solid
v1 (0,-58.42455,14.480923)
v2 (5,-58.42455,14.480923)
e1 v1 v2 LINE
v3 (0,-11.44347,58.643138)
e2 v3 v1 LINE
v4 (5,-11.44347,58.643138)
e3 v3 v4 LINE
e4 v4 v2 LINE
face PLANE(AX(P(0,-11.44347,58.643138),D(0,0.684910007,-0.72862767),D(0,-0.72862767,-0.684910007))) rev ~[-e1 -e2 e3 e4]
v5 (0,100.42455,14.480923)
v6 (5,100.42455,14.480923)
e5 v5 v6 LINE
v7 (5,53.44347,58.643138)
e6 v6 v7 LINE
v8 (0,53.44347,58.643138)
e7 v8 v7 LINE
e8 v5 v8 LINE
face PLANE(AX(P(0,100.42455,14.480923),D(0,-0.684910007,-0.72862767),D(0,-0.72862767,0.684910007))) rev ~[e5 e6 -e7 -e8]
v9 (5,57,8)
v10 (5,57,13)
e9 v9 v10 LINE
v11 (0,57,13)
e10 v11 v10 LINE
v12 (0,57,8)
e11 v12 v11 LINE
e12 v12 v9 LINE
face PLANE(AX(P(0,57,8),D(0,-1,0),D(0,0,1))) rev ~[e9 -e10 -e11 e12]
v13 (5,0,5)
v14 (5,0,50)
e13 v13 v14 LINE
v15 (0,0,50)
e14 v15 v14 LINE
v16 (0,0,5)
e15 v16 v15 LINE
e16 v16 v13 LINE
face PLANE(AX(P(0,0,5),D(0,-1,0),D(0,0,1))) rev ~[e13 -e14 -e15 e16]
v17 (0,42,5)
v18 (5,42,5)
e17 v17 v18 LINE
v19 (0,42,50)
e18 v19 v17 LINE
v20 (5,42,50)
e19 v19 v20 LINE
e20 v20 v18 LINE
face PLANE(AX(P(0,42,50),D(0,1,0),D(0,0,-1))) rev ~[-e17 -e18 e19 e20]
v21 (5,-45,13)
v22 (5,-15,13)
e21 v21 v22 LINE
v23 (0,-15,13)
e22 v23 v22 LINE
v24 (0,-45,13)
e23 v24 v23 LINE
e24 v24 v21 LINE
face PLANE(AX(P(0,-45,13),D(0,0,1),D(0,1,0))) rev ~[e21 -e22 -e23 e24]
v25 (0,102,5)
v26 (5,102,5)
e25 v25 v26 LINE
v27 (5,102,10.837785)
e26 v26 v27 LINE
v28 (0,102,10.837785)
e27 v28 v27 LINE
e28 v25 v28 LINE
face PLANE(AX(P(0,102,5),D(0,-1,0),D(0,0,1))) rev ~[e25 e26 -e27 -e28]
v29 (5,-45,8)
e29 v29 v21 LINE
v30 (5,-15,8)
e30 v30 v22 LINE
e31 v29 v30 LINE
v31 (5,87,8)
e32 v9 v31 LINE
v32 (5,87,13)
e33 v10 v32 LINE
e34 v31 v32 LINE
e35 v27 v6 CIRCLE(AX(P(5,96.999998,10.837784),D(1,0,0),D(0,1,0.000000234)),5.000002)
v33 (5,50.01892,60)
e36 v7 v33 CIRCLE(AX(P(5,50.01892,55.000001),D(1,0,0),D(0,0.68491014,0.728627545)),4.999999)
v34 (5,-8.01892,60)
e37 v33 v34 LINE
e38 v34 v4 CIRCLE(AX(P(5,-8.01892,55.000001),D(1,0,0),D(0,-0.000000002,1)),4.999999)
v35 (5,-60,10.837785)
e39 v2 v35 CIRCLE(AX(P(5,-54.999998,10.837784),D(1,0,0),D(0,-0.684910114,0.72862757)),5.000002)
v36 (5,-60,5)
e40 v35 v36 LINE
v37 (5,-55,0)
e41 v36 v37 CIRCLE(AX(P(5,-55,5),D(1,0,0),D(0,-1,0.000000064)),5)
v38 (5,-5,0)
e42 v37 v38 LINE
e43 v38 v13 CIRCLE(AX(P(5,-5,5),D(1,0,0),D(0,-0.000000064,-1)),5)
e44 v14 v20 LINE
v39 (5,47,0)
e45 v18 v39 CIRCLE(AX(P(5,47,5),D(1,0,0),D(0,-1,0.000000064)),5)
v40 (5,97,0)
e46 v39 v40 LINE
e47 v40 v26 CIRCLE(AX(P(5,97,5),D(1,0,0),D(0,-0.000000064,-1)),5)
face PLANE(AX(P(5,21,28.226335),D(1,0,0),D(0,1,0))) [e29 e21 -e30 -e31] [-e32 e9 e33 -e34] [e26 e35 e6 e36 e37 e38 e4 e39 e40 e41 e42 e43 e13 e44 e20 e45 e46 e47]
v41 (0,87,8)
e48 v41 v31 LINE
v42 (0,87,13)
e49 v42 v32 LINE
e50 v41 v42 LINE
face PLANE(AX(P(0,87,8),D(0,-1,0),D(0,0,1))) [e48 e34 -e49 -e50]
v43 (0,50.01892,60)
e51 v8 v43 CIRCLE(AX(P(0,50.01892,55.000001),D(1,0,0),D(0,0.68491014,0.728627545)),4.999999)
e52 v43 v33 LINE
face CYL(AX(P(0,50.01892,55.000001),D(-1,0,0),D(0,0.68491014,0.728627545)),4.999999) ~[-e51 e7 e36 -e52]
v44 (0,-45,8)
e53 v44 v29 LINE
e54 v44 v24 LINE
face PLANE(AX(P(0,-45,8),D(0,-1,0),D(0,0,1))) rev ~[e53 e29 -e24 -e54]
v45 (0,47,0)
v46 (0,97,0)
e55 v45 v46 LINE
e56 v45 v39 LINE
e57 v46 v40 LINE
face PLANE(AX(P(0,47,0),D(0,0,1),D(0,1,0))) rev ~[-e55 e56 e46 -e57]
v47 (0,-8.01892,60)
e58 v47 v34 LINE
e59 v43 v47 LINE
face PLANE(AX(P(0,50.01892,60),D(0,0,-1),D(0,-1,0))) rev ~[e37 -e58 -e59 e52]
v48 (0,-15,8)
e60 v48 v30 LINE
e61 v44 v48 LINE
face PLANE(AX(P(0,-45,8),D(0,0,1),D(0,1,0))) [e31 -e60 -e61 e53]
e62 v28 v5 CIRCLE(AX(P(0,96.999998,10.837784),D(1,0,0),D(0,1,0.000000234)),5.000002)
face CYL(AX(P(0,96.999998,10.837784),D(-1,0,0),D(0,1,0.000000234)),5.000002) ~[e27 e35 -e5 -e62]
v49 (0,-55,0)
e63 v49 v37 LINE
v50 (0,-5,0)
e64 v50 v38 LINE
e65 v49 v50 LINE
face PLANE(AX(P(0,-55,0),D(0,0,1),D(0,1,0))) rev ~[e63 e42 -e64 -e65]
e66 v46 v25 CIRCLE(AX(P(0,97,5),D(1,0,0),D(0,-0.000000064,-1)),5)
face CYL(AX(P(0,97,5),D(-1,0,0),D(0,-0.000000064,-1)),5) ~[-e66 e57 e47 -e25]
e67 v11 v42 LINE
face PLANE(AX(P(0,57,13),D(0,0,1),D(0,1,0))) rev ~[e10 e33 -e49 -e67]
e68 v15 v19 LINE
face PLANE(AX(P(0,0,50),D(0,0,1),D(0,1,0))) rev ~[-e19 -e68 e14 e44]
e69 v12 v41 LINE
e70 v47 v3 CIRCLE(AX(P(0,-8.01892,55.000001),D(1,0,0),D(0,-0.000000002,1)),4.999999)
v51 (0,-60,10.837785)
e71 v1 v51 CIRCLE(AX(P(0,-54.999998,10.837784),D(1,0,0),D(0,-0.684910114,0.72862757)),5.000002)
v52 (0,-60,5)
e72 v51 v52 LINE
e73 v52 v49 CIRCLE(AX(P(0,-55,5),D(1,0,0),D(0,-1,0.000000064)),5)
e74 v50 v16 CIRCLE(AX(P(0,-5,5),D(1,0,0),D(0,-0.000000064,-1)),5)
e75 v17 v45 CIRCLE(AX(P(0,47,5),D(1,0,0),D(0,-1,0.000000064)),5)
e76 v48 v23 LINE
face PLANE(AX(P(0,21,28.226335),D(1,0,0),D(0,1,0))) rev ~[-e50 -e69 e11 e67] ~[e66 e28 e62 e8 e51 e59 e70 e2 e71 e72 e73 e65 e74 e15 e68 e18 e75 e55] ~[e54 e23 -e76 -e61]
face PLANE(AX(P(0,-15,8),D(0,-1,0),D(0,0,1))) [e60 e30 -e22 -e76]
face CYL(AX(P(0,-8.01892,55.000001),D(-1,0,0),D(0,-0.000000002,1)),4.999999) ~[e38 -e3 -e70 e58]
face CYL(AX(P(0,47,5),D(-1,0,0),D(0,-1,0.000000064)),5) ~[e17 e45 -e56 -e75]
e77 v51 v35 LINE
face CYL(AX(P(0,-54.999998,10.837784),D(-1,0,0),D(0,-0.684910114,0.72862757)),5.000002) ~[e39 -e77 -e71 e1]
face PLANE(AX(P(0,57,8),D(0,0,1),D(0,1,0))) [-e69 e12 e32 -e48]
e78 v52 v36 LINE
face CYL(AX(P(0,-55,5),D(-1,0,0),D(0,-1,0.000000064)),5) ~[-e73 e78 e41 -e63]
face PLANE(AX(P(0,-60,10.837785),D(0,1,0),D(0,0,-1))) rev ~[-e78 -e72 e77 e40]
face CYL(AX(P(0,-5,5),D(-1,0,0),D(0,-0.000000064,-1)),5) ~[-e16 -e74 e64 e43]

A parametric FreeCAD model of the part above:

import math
import FreeCAD as App
import Part
import Sketcher


def add_polygon(sketch, points):
    """Adds a closed chain of lines whose ends are joined by coincident constraints."""
    first, n = sketch.GeometryCount, len(points)
    for a, b in zip(points, points[1:] + points[:1]):
        sketch.addGeometry(Part.LineSegment(App.Vector(*a, 0), App.Vector(*b, 0)), False)
    for i in range(n):
        sketch.addConstraint(Sketcher.Constraint("Coincident", first + i, 2, first + (i + 1) % n, 1))

doc = App.newDocument("Part")
params = doc.addObject("Spreadsheet::Sheet", "Params")
for row, (alias, value) in enumerate([
    ("sketch1_radius", "5 mm"),
    ("sketch1_width", "42 mm"),
    ("sketch1_width2", "50 mm"),
    ("sketch1_width3", "30 mm"),
    ("sketch1_height", "45 mm"),
    ("pad1_length", "5 mm"),
], start=1):
    params.set(f"A{row}", alias)
    params.set(f"B{row}", "=" + value)
    params.setAlias(f"B{row}", alias)

body = doc.addObject("PartDesign::Body", "Body")

sketch1 = doc.addObject("Sketcher::SketchObject", "Sketch")
body.addObject(sketch1)
sketch1.AttachmentSupport = (doc.YZ_Plane, [""])
sketch1.MapMode = "FlatFace"
sketch1.addGeometry(Part.ArcOfCircle(Part.Circle(App.Vector(-5, 5, 0), App.Vector(0, 0, 1), 5), math.radians(-90), math.radians(0)), False)
sketch1.addGeometry(Part.LineSegment(App.Vector(0, 5, 0), App.Vector(0, 50, 0)), False)
sketch1.addGeometry(Part.LineSegment(App.Vector(0, 50, 0), App.Vector(42, 50, 0)), False)
sketch1.addGeometry(Part.LineSegment(App.Vector(42, 50, 0), App.Vector(42, 5, 0)), False)
sketch1.addGeometry(Part.ArcOfCircle(Part.Circle(App.Vector(47, 5, 0), App.Vector(0, 0, 1), 5), math.radians(180), math.radians(270)), False)
sketch1.addGeometry(Part.LineSegment(App.Vector(47, 0, 0), App.Vector(97, 0, 0)), False)
sketch1.addGeometry(Part.ArcOfCircle(Part.Circle(App.Vector(97, 5, 0), App.Vector(0, 0, 1), 5), math.radians(-90), math.radians(0)), False)
sketch1.addGeometry(Part.LineSegment(App.Vector(102, 5, 0), App.Vector(102, 10.8, 0)), False)
sketch1.addGeometry(Part.ArcOfCircle(Part.Circle(App.Vector(97, 10.8, 0), App.Vector(0, 0, 1), 5), math.radians(0), math.radians(47)), False)
sketch1.addGeometry(Part.LineSegment(App.Vector(100.4, 14.5, 0), App.Vector(53.4, 58.6, 0)), False)
sketch1.addGeometry(Part.ArcOfCircle(Part.Circle(App.Vector(50, 55, 0), App.Vector(0, 0, 1), 5), math.radians(47), math.radians(90)), False)
sketch1.addGeometry(Part.LineSegment(App.Vector(50, 60, 0), App.Vector(-8, 60, 0)), False)
sketch1.addGeometry(Part.ArcOfCircle(Part.Circle(App.Vector(-8, 55, 0), App.Vector(0, 0, 1), 5), math.radians(90), math.radians(133)), False)
sketch1.addGeometry(Part.LineSegment(App.Vector(-11.4, 58.6, 0), App.Vector(-58.4, 14.5, 0)), False)
sketch1.addGeometry(Part.ArcOfCircle(Part.Circle(App.Vector(-55, 10.8, 0), App.Vector(0, 0, 1), 5), math.radians(133), math.radians(180)), False)
sketch1.addGeometry(Part.LineSegment(App.Vector(-60, 10.8, 0), App.Vector(-60, 5, 0)), False)
sketch1.addGeometry(Part.ArcOfCircle(Part.Circle(App.Vector(-55, 5, 0), App.Vector(0, 0, 1), 5), math.radians(180), math.radians(270)), False)
sketch1.addGeometry(Part.LineSegment(App.Vector(-55, 0, 0), App.Vector(-5, 0, 0)), False)
add_polygon(sketch1, [(-15, 8), (-45, 8), (-45, 13), (-15, 13)])
add_polygon(sketch1, [(87, 8), (57, 8), (57, 13), (87, 13)])
sketch1.addConstraint(Sketcher.Constraint("Tangent", 0, 2, 1, 1))
sketch1.addConstraint(Sketcher.Constraint("Coincident", 1, 2, 2, 1))
sketch1.addConstraint(Sketcher.Constraint("Coincident", 2, 2, 3, 1))
sketch1.addConstraint(Sketcher.Constraint("Tangent", 3, 2, 4, 1))
sketch1.addConstraint(Sketcher.Constraint("Tangent", 4, 2, 5, 1))
sketch1.addConstraint(Sketcher.Constraint("Tangent", 5, 2, 6, 1))
sketch1.addConstraint(Sketcher.Constraint("Tangent", 6, 2, 7, 1))
sketch1.addConstraint(Sketcher.Constraint("Tangent", 7, 2, 8, 1))
sketch1.addConstraint(Sketcher.Constraint("Tangent", 8, 2, 9, 1))
sketch1.addConstraint(Sketcher.Constraint("Tangent", 9, 2, 10, 1))
sketch1.addConstraint(Sketcher.Constraint("Tangent", 10, 2, 11, 1))
sketch1.addConstraint(Sketcher.Constraint("Tangent", 11, 2, 12, 1))
sketch1.addConstraint(Sketcher.Constraint("Tangent", 12, 2, 13, 1))
sketch1.addConstraint(Sketcher.Constraint("Tangent", 13, 2, 14, 1))
sketch1.addConstraint(Sketcher.Constraint("Tangent", 14, 2, 15, 1))
sketch1.addConstraint(Sketcher.Constraint("Tangent", 15, 2, 16, 1))
sketch1.addConstraint(Sketcher.Constraint("Tangent", 16, 2, 17, 1))
sketch1.addConstraint(Sketcher.Constraint("Tangent", 17, 2, 0, 1))
sketch1.addConstraint(Sketcher.Constraint("Vertical", 1))
sketch1.addConstraint(Sketcher.Constraint("Horizontal", 2))
sketch1.addConstraint(Sketcher.Constraint("Vertical", 3))
sketch1.addConstraint(Sketcher.Constraint("Horizontal", 5))
sketch1.addConstraint(Sketcher.Constraint("Vertical", 7))
sketch1.addConstraint(Sketcher.Constraint("Horizontal", 11))
sketch1.addConstraint(Sketcher.Constraint("Vertical", 15))
sketch1.addConstraint(Sketcher.Constraint("Horizontal", 17))
sketch1.addConstraint(Sketcher.Constraint("Horizontal", 18))
sketch1.addConstraint(Sketcher.Constraint("Vertical", 19))
sketch1.addConstraint(Sketcher.Constraint("Horizontal", 20))
sketch1.addConstraint(Sketcher.Constraint("Vertical", 21))
sketch1.addConstraint(Sketcher.Constraint("Horizontal", 22))
sketch1.addConstraint(Sketcher.Constraint("Vertical", 23))
sketch1.addConstraint(Sketcher.Constraint("Horizontal", 24))
sketch1.addConstraint(Sketcher.Constraint("Vertical", 25))
sketch1.addConstraint(Sketcher.Constraint("Equal", 0, 4))
sketch1.addConstraint(Sketcher.Constraint("Equal", 4, 6))
sketch1.addConstraint(Sketcher.Constraint("Equal", 6, 10))
sketch1.addConstraint(Sketcher.Constraint("Equal", 10, 12))
sketch1.addConstraint(Sketcher.Constraint("Equal", 8, 14))
sketch1.addConstraint(Sketcher.Constraint("Equal", 12, 16))
sketch1.addConstraint(Sketcher.Constraint("PointOnObject", 0, 2, -2))
sketch1.addConstraint(Sketcher.Constraint("PointOnObject", 4, 2, -1))
sketch1.addConstraint(Sketcher.Constraint("PointOnObject", 16, 2, -1))
sketch1.addConstraint(Sketcher.Constraint("Horizontal", 8, 3, 14, 3))
sketch1.addConstraint(Sketcher.Constraint("Horizontal", 9, 2, 12, 2))
sketch1.addConstraint(Sketcher.Constraint("Horizontal", 21, 2, 22, 2))
sketch1.addConstraint(Sketcher.Constraint("Horizontal", 20, 2, 23, 2))
sketch1.addConstraint(Sketcher.Constraint("Vertical", 8, 3, 5, 2))
sketch1.addConstraint(Sketcher.Constraint("Equal", 5, 17))
sketch1.addConstraint(Sketcher.Constraint("Equal", 20, 22))
sketch1.addConstraint(Sketcher.Constraint("Radius", 0, 5.0))
sketch1.addConstraint(Sketcher.Constraint("DistanceX", 2, 1, 2, 2, 42.0))
sketch1.addConstraint(Sketcher.Constraint("DistanceX", 5, 1, 5, 2, 50.0))
sketch1.addConstraint(Sketcher.Constraint("DistanceX", 18, 2, 18, 1, 30.0))
sketch1.addConstraint(Sketcher.Constraint("DistanceY", 1, 1, 1, 2, 45.0))
sketch1.addConstraint(Sketcher.Constraint("DistanceY", 19, 1, 19, 2, 5.0))
sketch1.addConstraint(Sketcher.Constraint("DistanceY", -1, 1, 10, 3, 55.000001))
sketch1.addConstraint(Sketcher.Constraint("DistanceX", 18, 2, -1, 1, 45.0))
sketch1.addConstraint(Sketcher.Constraint("DistanceY", -1, 1, 18, 2, 8.0))
sketch1.addConstraint(Sketcher.Constraint("DistanceX", -1, 1, 22, 2, 57.0))
sketch1.addConstraint(Sketcher.Constraint("DistanceX", 11, 2, 11, 1, 58.03784))
sketch1.addConstraint(Sketcher.Constraint("DistanceY", 7, 1, 7, 2, 5.837785))
sketch1.setExpression("Constraints[58]", "Params.sketch1_radius")
sketch1.setExpression("Constraints[59]", "Params.sketch1_width")
sketch1.setExpression("Constraints[60]", "Params.sketch1_width2")
sketch1.setExpression("Constraints[61]", "Params.sketch1_width3")
sketch1.setExpression("Constraints[62]", "Params.sketch1_height")
pad1 = doc.addObject("PartDesign::Pad", "Pad")
body.addObject(pad1)
pad1.Profile = sketch1
pad1.setExpression("Length", "Params.pad1_length")

doc.recompute()
